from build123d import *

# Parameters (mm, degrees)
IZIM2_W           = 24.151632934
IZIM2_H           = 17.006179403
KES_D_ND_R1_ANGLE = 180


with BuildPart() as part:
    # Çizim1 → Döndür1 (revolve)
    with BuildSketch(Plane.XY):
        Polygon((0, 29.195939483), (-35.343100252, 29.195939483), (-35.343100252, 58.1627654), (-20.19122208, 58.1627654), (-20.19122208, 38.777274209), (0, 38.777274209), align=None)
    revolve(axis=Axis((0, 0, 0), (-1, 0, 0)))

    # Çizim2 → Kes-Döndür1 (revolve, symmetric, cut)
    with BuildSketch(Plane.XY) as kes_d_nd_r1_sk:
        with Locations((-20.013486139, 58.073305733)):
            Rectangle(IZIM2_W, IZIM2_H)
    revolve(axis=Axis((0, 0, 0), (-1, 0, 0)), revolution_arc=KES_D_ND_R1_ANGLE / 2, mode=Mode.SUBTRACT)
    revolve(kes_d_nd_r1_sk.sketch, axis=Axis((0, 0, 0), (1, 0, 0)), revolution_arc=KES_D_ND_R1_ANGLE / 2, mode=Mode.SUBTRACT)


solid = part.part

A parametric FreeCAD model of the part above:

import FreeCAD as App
import Part
import Sketcher
Q = App.Units.Quantity


def add_polygon(sketch, points):
    """Adds a closed chain of lines whose ends are joined by coincident constraints."""
    first, n = sketch.GeometryCount, len(points)
    for a, b in zip(points, points[1:] + points[:1]):
        sketch.addGeometry(Part.LineSegment(App.Vector(*a, 0), App.Vector(*b, 0)), False)
    for i in range(n):
        sketch.addConstraint(Sketcher.Constraint("Coincident", first + i, 2, first + (i + 1) % n, 1))

doc = App.newDocument("Part")
body = doc.addObject("PartDesign::Body", "Body")

# Sketch on XY plane
sketch1 = doc.addObject("Sketcher::SketchObject", "Sketch")
body.addObject(sketch1)
sketch1.AttachmentSupport = (doc.XY_Plane, [""])
sketch1.MapMode = "FlatFace"
add_polygon(sketch1, [(-35.3431, 29.195939), (0, 29.195939), (0, 38.777274), (-20.191222, 38.777274), (-20.191222, 58.162765), (-35.3431, 58.162765)])  # lines 0-5
sketch1.addConstraint([
    Sketcher.Constraint("Horizontal", 0),
    Sketcher.Constraint("Vertical", 1),
    Sketcher.Constraint("Horizontal", 2),
    Sketcher.Constraint("Vertical", 3),
    Sketcher.Constraint("Horizontal", 4),
    Sketcher.Constraint("Vertical", 5),
    Sketcher.Constraint("PointOnObject", 0, 2, -2),
    Sketcher.Constraint("DistanceX", 0, 1, 0, 2, Q("35.3431 mm")),
    Sketcher.Constraint("DistanceX", 4, 2, 4, 1, Q("15.151878 mm")),
    Sketcher.Constraint("DistanceY", 3, 1, 3, 2, Q("19.385491 mm")),
    Sketcher.Constraint("DistanceY", 1, 1, 1, 2, Q("9.581335 mm")),
    Sketcher.Constraint("DistanceY", -1, 1, 0, 2, Q("29.195939 mm")),
])
revolution = doc.addObject("PartDesign::Revolution", "Revolution")
body.addObject(revolution)
revolution.Profile = sketch1
revolution.ReferenceAxis = (sketch1, ["H_Axis"])
revolution.Angle = 360

# Sketch on XY plane
sketch2 = doc.addObject("Sketcher::SketchObject", "Sketch001")
body.addObject(sketch2)
sketch2.AttachmentSupport = (doc.XY_Plane, [""])
sketch2.MapMode = "FlatFace"
add_polygon(sketch2, [(-32.089303, 66.576395), (-32.089303, 49.570216), (-7.93767, 49.570216), (-7.93767, 66.576395)])  # lines 0-3
sketch2.addConstraint([
    Sketcher.Constraint("Vertical", 0),
    Sketcher.Constraint("Horizontal", 1),
    Sketcher.Constraint("Vertical", 2),
    Sketcher.Constraint("Horizontal", 3),
    Sketcher.Constraint("DistanceY", 0, 2, 0, 1, Q("17.006179 mm")),
    Sketcher.Constraint("DistanceX", 1, 1, 1, 2, Q("24.151633 mm")),
    Sketcher.Constraint("DistanceX", 1, 2, -1, 1, Q("7.93767 mm")),
    Sketcher.Constraint("DistanceY", -1, 1, 0, 2, Q("49.570216 mm")),
])
groove = doc.addObject("PartDesign::Groove", "Groove")
body.addObject(groove)
groove.Profile = sketch2
groove.ReferenceAxis = (sketch2, ["H_Axis"])
groove.Angle = 90
groove.Reversed = True

# Sketch on XY plane
sketch3 = doc.addObject("Sketcher::SketchObject", "Sketch002")
body.addObject(sketch3)
sketch3.AttachmentSupport = (doc.XY_Plane, [""])
sketch3.MapMode = "FlatFace"
add_polygon(sketch3, [(-32.089303, 66.576395), (-32.089303, 49.570216), (-7.93767, 49.570216), (-7.93767, 66.576395)])  # lines 0-3
sketch3.addConstraint([
    Sketcher.Constraint("Vertical", 0),
    Sketcher.Constraint("Horizontal", 1),
    Sketcher.Constraint("Vertical", 2),
    Sketcher.Constraint("Horizontal", 3),
    Sketcher.Constraint("DistanceY", 0, 2, 0, 1, Q("17.006179 mm")),
    Sketcher.Constraint("DistanceX", 1, 1, 1, 2, Q("24.151633 mm")),
    Sketcher.Constraint("DistanceX", 1, 2, -1, 1, Q("7.93767 mm")),
    Sketcher.Constraint("DistanceY", -1, 1, 0, 2, Q("49.570216 mm")),
])
groove2 = doc.addObject("PartDesign::Groove", "Groove001")
body.addObject(groove2)
groove2.Profile = sketch3
groove2.ReferenceAxis = (sketch3, ["H_Axis"])
groove2.Angle = 90

doc.recompute()
